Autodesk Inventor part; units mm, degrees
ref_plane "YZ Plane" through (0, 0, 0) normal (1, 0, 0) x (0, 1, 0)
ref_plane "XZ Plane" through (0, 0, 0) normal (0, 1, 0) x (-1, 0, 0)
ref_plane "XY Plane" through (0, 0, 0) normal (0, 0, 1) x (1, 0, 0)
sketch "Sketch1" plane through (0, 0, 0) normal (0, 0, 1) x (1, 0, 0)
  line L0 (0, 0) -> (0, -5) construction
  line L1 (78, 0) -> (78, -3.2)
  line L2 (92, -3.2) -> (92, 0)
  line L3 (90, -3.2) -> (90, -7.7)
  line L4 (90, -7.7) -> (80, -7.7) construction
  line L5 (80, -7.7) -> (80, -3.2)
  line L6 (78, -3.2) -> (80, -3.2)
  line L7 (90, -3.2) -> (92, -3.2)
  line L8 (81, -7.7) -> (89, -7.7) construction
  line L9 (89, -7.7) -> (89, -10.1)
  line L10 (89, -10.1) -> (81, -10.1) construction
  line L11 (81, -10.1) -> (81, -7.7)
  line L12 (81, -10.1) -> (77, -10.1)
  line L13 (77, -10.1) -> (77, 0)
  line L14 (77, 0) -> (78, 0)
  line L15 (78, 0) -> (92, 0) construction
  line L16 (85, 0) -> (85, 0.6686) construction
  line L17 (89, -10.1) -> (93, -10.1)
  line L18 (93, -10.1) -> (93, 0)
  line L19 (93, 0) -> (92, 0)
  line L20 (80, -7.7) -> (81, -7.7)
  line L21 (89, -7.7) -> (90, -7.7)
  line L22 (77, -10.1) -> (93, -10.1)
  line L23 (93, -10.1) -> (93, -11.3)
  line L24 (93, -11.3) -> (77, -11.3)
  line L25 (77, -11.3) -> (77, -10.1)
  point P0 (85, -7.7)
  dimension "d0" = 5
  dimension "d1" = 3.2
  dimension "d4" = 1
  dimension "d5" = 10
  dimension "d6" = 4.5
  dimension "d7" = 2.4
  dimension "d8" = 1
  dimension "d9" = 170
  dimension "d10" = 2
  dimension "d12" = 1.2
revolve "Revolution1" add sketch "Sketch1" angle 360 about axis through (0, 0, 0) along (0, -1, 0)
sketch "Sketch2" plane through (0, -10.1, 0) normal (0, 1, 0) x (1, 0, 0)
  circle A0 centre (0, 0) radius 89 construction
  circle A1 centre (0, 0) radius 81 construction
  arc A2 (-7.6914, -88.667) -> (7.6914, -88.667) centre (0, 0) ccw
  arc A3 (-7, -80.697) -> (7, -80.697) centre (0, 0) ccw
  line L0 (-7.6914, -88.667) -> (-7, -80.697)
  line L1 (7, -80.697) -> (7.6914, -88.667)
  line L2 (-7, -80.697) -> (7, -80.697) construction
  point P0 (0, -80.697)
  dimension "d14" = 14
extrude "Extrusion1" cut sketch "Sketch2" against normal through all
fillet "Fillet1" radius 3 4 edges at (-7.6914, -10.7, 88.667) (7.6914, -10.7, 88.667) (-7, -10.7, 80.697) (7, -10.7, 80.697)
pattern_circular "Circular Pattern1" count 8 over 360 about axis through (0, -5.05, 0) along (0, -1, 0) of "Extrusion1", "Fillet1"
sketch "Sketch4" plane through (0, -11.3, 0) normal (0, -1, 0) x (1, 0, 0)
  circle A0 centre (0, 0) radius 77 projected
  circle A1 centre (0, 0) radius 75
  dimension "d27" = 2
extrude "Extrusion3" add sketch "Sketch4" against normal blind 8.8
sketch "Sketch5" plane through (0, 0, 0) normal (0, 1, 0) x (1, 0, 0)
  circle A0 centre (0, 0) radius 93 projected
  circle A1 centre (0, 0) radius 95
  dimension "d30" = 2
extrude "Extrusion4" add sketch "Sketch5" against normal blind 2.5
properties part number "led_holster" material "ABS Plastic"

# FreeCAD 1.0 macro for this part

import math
import FreeCAD as App
import Part
import Sketcher
from FreeCAD import Vector


def edges_at(feature, points):
    """Names of the edges that pass closest to the given points."""
    edges = feature.Shape.Edges
    near = lambda p: min(range(len(edges)), key=lambda i: edges[i].distToShape(Part.Vertex(*p))[0])
    return sorted({f"Edge{near(p) + 1}" for p in points})

doc = App.newDocument("Part")
body = doc.addObject("PartDesign::Body", "Body")

sketch1 = body.newObject("Sketcher::SketchObject", "Sketch")
sketch1.AttachmentSupport = (doc.getObject("XY_Plane"), [""])
sketch1.MapMode = "FlatFace"
sketch1.addGeometry([
    Part.LineSegment(Vector(78, -3.2, 0), Vector(78, 0, 0)),
    Part.LineSegment(Vector(78, 0, 0), Vector(77, 0, 0)),
    Part.LineSegment(Vector(77, 0, 0), Vector(77, -11.3, 0)),
    Part.LineSegment(Vector(77, -11.3, 0), Vector(93, -11.3, 0)),
    Part.LineSegment(Vector(93, -11.3, 0), Vector(93, 0, 0)),
    Part.LineSegment(Vector(93, 0, 0), Vector(92, 0, 0)),
    Part.LineSegment(Vector(92, 0, 0), Vector(92, -3.2, 0)),
    Part.LineSegment(Vector(92, -3.2, 0), Vector(90, -3.2, 0)),
    Part.LineSegment(Vector(90, -3.2, 0), Vector(90, -7.7, 0)),
    Part.LineSegment(Vector(90, -7.7, 0), Vector(89, -7.7, 0)),
    Part.LineSegment(Vector(89, -7.7, 0), Vector(89, -10.1, 0)),
    Part.LineSegment(Vector(89, -10.1, 0), Vector(81, -10.1, 0)),
    Part.LineSegment(Vector(81, -10.1, 0), Vector(81, -7.7, 0)),
    Part.LineSegment(Vector(81, -7.7, 0), Vector(80, -7.7, 0)),
    Part.LineSegment(Vector(80, -7.7, 0), Vector(80, -3.2, 0)),
    Part.LineSegment(Vector(80, -3.2, 0), Vector(78, -3.2, 0)),
], False)
sketch1.addConstraint([
    Sketcher.Constraint("Coincident", 0, 2, 1, 1),
    Sketcher.Constraint("Coincident", 1, 2, 2, 1),
    Sketcher.Constraint("Coincident", 2, 2, 3, 1),
    Sketcher.Constraint("Coincident", 3, 2, 4, 1),
    Sketcher.Constraint("Coincident", 4, 2, 5, 1),
    Sketcher.Constraint("Coincident", 5, 2, 6, 1),
    Sketcher.Constraint("Coincident", 6, 2, 7, 1),
    Sketcher.Constraint("Coincident", 7, 2, 8, 1),
    Sketcher.Constraint("Coincident", 8, 2, 9, 1),
    Sketcher.Constraint("Coincident", 9, 2, 10, 1),
    Sketcher.Constraint("Coincident", 10, 2, 11, 1),
    Sketcher.Constraint("Coincident", 11, 2, 12, 1),
    Sketcher.Constraint("Coincident", 12, 2, 13, 1),
    Sketcher.Constraint("Coincident", 13, 2, 14, 1),
    Sketcher.Constraint("Coincident", 14, 2, 15, 1),
    Sketcher.Constraint("Coincident", 15, 2, 0, 1),
    Sketcher.Constraint("Vertical", 0),
    Sketcher.Constraint("Horizontal", 1),
    Sketcher.Constraint("Vertical", 2),
    Sketcher.Constraint("Horizontal", 3),
    Sketcher.Constraint("Vertical", 4),
    Sketcher.Constraint("Horizontal", 5),
    Sketcher.Constraint("Vertical", 6),
    Sketcher.Constraint("Horizontal", 7),
    Sketcher.Constraint("Vertical", 8),
    Sketcher.Constraint("Horizontal", 9),
    Sketcher.Constraint("Vertical", 10),
    Sketcher.Constraint("Horizontal", 11),
    Sketcher.Constraint("Vertical", 12),
    Sketcher.Constraint("Horizontal", 13),
    Sketcher.Constraint("Vertical", 14),
    Sketcher.Constraint("Horizontal", 15),
    Sketcher.Constraint("PointOnObject", 0, 2, -1),
    Sketcher.Constraint("PointOnObject", 4, 2, -1),
    Sketcher.Constraint("Horizontal", 9, 2, 12, 2),
    Sketcher.Constraint("Horizontal", 7, 2, 14, 2),
    Sketcher.Constraint("Equal", 1, 5),
    Sketcher.Constraint("Equal", 5, 9),
    Sketcher.Constraint("Equal", 9, 13),
    Sketcher.Constraint("Equal", 7, 15),
    Sketcher.Constraint("DistanceX", 1, 2, 1, 1, 1.0),
    Sketcher.Constraint("DistanceX", 7, 2, 7, 1, 2.0),
    Sketcher.Constraint("DistanceY", 0, 1, 0, 2, 3.2),
    Sketcher.Constraint("DistanceY", 8, 2, 8, 1, 4.5),
    Sketcher.Constraint("DistanceY", 10, 2, 10, 1, 2.4),
    Sketcher.Constraint("DistanceY", 3, 2, 10, 2, 1.2),
    Sketcher.Constraint("DistanceX", 3, 1, 3, 2, 16.0),
    Sketcher.Constraint("DistanceX", -1, 1, 0, 2, 78.0),
])
revolution = body.newObject("PartDesign::Revolution", "Revolution")
revolution.Profile = sketch1
revolution.ReferenceAxis = (sketch1, ["V_Axis"])
revolution.Angle = 360

sketch2 = body.newObject("Sketcher::SketchObject", "Sketch001")
sketch2.AttachmentSupport = (doc.getObject("XZ_Plane"), [""])
sketch2.MapMode = "FlatFace"
sketch2.AttachmentOffset = App.Placement(Vector(0, 0, 10.1), App.Rotation())
sketch2.addGeometry([
    Part.LineSegment(Vector(-7, 81, 0), Vector(-8, 89, 0)),
    Part.ArcOfCircle(Part.Circle(Vector(0, 0, 0), Vector(0, 0, 1), 89), math.radians(85.04), math.radians(94.96)),
    Part.LineSegment(Vector(8, 89, 0), Vector(7, 81, 0)),
    Part.ArcOfCircle(Part.Circle(Vector(0, 0, 0), Vector(0, 0, 1), 81), math.radians(85.04), math.radians(94.96)),
], False)
sketch2.addConstraint([
    Sketcher.Constraint("Coincident", 0, 2, 1, 2),
    Sketcher.Constraint("Coincident", 1, 1, 2, 1),
    Sketcher.Constraint("Coincident", 2, 2, 3, 1),
    Sketcher.Constraint("Coincident", 3, 2, 0, 1),
    Sketcher.Constraint("Coincident", 1, 3, -1, 1),
    Sketcher.Constraint("Coincident", 3, 3, -1, 1),
    Sketcher.Constraint("Horizontal", 0, 2, 1, 1),
    Sketcher.Constraint("Horizontal", 2, 2, 3, 2),
    Sketcher.Constraint("Radius", 1, 89.0),
    Sketcher.Constraint("Radius", 3, 81.0),
    Sketcher.Constraint("DistanceX", 3, 2, 2, 2, 14.0),
    Sketcher.Constraint("DistanceY", 2, 2, 1, 1, 7.97),
])
pocket1 = body.newObject("PartDesign::Pocket", "Pocket")
pocket1.Profile = sketch2
pocket1.Type = "ThroughAll"
pocket1.Reversed = True
doc.recompute()

fillet = body.newObject("PartDesign::Fillet", "Fillet")
fillet.Base = (pocket1, edges_at(pocket1, [
    (-7.691, -10.7, 88.667),
    (7.691, -10.7, 88.667),
    (-7, -10.7, 80.697),
    (7, -10.7, 80.697),
]))
fillet.Radius = 3
doc.recompute()

polarpattern = body.newObject("PartDesign::PolarPattern", "PolarPattern")
polarpattern.Originals = [pocket1, fillet]
polarpattern.Axis = (doc.getObject("Y_Axis"), [""])
polarpattern.Angle = 360
polarpattern.Occurrences = 8
body.Tip = polarpattern

sketch3 = body.newObject("Sketcher::SketchObject", "Sketch002")
sketch3.AttachmentSupport = (doc.getObject("XZ_Plane"), [""])
sketch3.MapMode = "FlatFace"
sketch3.AttachmentOffset = App.Placement(Vector(0, 0, 11.3), App.Rotation())
sketch3.addGeometry([
    Part.Circle(Vector(0, 0, 0), Vector(0, 0, 1), 77),
    Part.Circle(Vector(0, 0, 0), Vector(0, 0, 1), 75),
], False)
sketch3.addConstraint([
    Sketcher.Constraint("Coincident", 0, 3, -1, 1),
    Sketcher.Constraint("Coincident", 1, 3, -1, 1),
    Sketcher.Constraint("Diameter", 0, 154.0),
    Sketcher.Constraint("Diameter", 1, 150.0),
])
pad1 = body.newObject("PartDesign::Pad", "Pad")
pad1.Profile = sketch3
pad1.Length = 8.8
pad1.Reversed = True

sketch4 = body.newObject("Sketcher::SketchObject", "Sketch003")
sketch4.AttachmentSupport = (doc.getObject("XZ_Plane"), [""])
sketch4.MapMode = "FlatFace"
sketch4.addGeometry([
    Part.Circle(Vector(0, 0, 0), Vector(0, 0, 1), 95),
    Part.Circle(Vector(0, 0, 0), Vector(0, 0, 1), 93),
], False)
sketch4.addConstraint([
    Sketcher.Constraint("Coincident", 0, 3, -1, 1),
    Sketcher.Constraint("Coincident", 1, 3, -1, 1),
    Sketcher.Constraint("Diameter", 0, 190.0),
    Sketcher.Constraint("Diameter", 1, 186.0),
])
pad2 = body.newObject("PartDesign::Pad", "Pad001")
pad2.Profile = sketch4
pad2.Length = 2.5

doc.recompute()
